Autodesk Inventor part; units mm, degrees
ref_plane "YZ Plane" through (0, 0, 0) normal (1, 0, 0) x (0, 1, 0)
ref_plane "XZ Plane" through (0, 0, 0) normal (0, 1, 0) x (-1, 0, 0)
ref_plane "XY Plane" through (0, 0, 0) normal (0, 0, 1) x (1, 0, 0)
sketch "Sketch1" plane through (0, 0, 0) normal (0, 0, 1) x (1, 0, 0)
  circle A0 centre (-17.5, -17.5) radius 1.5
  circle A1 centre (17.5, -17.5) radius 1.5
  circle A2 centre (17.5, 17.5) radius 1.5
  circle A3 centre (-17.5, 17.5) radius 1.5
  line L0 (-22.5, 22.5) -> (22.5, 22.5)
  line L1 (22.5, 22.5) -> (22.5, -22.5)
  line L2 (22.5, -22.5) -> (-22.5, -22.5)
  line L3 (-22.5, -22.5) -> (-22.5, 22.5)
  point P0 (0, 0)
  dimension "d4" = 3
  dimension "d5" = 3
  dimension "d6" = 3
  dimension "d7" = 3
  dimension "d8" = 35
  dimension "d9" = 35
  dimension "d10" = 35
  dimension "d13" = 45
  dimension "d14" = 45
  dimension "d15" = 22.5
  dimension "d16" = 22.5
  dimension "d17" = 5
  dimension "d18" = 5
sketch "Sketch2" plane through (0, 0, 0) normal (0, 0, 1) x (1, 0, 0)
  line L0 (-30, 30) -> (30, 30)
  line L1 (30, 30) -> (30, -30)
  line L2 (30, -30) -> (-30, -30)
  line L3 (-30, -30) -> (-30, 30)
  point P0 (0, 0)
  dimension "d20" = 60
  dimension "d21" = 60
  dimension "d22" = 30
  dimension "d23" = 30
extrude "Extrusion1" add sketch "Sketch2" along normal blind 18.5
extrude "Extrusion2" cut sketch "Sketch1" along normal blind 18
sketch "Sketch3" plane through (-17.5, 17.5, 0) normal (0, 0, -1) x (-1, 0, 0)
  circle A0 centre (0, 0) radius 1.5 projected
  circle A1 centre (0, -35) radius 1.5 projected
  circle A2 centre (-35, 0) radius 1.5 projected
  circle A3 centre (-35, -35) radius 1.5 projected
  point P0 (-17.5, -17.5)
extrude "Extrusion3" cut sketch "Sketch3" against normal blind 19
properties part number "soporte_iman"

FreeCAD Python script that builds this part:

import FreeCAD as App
import Part
import Sketcher
from FreeCAD import Vector

doc = App.newDocument("Part")
body = doc.addObject("PartDesign::Body", "Body")

# Sketch on XY plane
sketch1 = doc.addObject("Sketcher::SketchObject", "Sketch")
body.addObject(sketch1)
sketch1.AttachmentSupport = (doc.XY_Plane, [""])
sketch1.MapMode = "FlatFace"
sketch1.addGeometry([
    Part.LineSegment(Vector(30, 30, 0), Vector(-30, 30, 0)),
    Part.LineSegment(Vector(-30, 30, 0), Vector(-30, -30, 0)),
    Part.LineSegment(Vector(-30, -30, 0), Vector(30, -30, 0)),
    Part.LineSegment(Vector(30, -30, 0), Vector(30, 30, 0)),
], False)
sketch1.addConstraint([
    Sketcher.Constraint("Coincident", 0, 2, 1, 1),
    Sketcher.Constraint("Coincident", 1, 2, 2, 1),
    Sketcher.Constraint("Coincident", 2, 2, 3, 1),
    Sketcher.Constraint("Coincident", 3, 2, 0, 1),
    Sketcher.Constraint("Horizontal", 0),
    Sketcher.Constraint("Vertical", 1),
    Sketcher.Constraint("Horizontal", 2),
    Sketcher.Constraint("Vertical", 3),
    Sketcher.Constraint("Symmetric", 0, 2, 2, 2, -1, 1),
    Sketcher.Constraint("Equal", 2, 1),
    Sketcher.Constraint("DistanceX", 0, 2, 0, 1, 60.0),
])
pad1 = doc.addObject("PartDesign::Pad", "Pad")
body.addObject(pad1)
pad1.Profile = sketch1
pad1.Length = 18.5

# Sketch on XY plane
sketch2 = doc.addObject("Sketcher::SketchObject", "Sketch001")
body.addObject(sketch2)
sketch2.AttachmentSupport = (doc.XY_Plane, [""])
sketch2.MapMode = "FlatFace"
sketch2.addGeometry([
    Part.LineSegment(Vector(22.5, 22.5, 0), Vector(-22.5, 22.5, 0)),  # 0
    Part.LineSegment(Vector(-22.5, 22.5, 0), Vector(-22.5, -22.5, 0)),  # 1
    Part.LineSegment(Vector(-22.5, -22.5, 0), Vector(22.5, -22.5, 0)),  # 2
    Part.LineSegment(Vector(22.5, -22.5, 0), Vector(22.5, 22.5, 0)),  # 3
    Part.Circle(Vector(-17.5, -17.5, 0), Vector(0, 0, 1), 1.5),  # 4
    Part.Circle(Vector(17.5, -17.5, 0), Vector(0, 0, 1), 1.5),  # 5
    Part.Circle(Vector(-17.5, 17.5, 0), Vector(0, 0, 1), 1.5),  # 6
    Part.Circle(Vector(17.5, 17.5, 0), Vector(0, 0, 1), 1.5),  # 7
], False)
sketch2.addConstraint([
    Sketcher.Constraint("Coincident", 0, 2, 1, 1),
    Sketcher.Constraint("Coincident", 1, 2, 2, 1),
    Sketcher.Constraint("Coincident", 2, 2, 3, 1),
    Sketcher.Constraint("Coincident", 3, 2, 0, 1),
    Sketcher.Constraint("Horizontal", 0),
    Sketcher.Constraint("Vertical", 1),
    Sketcher.Constraint("Horizontal", 2),
    Sketcher.Constraint("Vertical", 3),
    Sketcher.Constraint("Equal", 4, 5),
    Sketcher.Constraint("Equal", 5, 6),
    Sketcher.Constraint("Equal", 6, 7),
    Sketcher.Constraint("Symmetric", 5, 3, 6, 3, -1, 1),
    Sketcher.Constraint("Symmetric", 4, 3, 7, 3, -1, 1),
    Sketcher.Constraint("Symmetric", 0, 2, 2, 2, -1, 1),
    Sketcher.Constraint("Symmetric", 4, 3, 5, 3, -2),
    Sketcher.Constraint("Equal", 2, 1),
    Sketcher.Constraint("Diameter", 4, 3.0),
    Sketcher.Constraint("DistanceX", 0, 2, 0, 1, 45.0),
    Sketcher.Constraint("DistanceX", 4, 3, 5, 3, 35.0),
    Sketcher.Constraint("DistanceY", 4, 3, 6, 3, 35.0),
])
pocket1 = doc.addObject("PartDesign::Pocket", "Pocket")
body.addObject(pocket1)
pocket1.Profile = sketch2
pocket1.Length = 18
pocket1.Reversed = True

# Sketch on XY plane
sketch3 = doc.addObject("Sketcher::SketchObject", "Sketch002")
body.addObject(sketch3)
sketch3.AttachmentSupport = (doc.XY_Plane, [""])
sketch3.MapMode = "FlatFace"
sketch3.addGeometry([
    Part.Circle(Vector(-17.5, 17.5, 0), Vector(0, 0, 1), 1.5),
    Part.Circle(Vector(-17.5, -17.5, 0), Vector(0, 0, 1), 1.5),
    Part.Circle(Vector(17.5, 17.5, 0), Vector(0, 0, 1), 1.5),
    Part.Circle(Vector(17.5, -17.5, 0), Vector(0, 0, 1), 1.5),
], False)
sketch3.addConstraint([
    Sketcher.Constraint("Equal", 0, 1),
    Sketcher.Constraint("Equal", 1, 2),
    Sketcher.Constraint("Equal", 2, 3),
    Sketcher.Constraint("Symmetric", 1, 3, 2, 3, -1, 1),
    Sketcher.Constraint("Symmetric", 0, 3, 3, 3, -1, 1),
    Sketcher.Constraint("Symmetric", 0, 3, 2, 3, -2),
    Sketcher.Constraint("Diameter", 0, 3.0),
    Sketcher.Constraint("DistanceY", 1, 3, 0, 3, 35.0),
    Sketcher.Constraint("DistanceX", 0, 3, 2, 3, 35.0),
])
pocket2 = doc.addObject("PartDesign::Pocket", "Pocket001")
body.addObject(pocket2)
pocket2.Profile = sketch3
pocket2.Length = 19
pocket2.Reversed = True

doc.recompute()
